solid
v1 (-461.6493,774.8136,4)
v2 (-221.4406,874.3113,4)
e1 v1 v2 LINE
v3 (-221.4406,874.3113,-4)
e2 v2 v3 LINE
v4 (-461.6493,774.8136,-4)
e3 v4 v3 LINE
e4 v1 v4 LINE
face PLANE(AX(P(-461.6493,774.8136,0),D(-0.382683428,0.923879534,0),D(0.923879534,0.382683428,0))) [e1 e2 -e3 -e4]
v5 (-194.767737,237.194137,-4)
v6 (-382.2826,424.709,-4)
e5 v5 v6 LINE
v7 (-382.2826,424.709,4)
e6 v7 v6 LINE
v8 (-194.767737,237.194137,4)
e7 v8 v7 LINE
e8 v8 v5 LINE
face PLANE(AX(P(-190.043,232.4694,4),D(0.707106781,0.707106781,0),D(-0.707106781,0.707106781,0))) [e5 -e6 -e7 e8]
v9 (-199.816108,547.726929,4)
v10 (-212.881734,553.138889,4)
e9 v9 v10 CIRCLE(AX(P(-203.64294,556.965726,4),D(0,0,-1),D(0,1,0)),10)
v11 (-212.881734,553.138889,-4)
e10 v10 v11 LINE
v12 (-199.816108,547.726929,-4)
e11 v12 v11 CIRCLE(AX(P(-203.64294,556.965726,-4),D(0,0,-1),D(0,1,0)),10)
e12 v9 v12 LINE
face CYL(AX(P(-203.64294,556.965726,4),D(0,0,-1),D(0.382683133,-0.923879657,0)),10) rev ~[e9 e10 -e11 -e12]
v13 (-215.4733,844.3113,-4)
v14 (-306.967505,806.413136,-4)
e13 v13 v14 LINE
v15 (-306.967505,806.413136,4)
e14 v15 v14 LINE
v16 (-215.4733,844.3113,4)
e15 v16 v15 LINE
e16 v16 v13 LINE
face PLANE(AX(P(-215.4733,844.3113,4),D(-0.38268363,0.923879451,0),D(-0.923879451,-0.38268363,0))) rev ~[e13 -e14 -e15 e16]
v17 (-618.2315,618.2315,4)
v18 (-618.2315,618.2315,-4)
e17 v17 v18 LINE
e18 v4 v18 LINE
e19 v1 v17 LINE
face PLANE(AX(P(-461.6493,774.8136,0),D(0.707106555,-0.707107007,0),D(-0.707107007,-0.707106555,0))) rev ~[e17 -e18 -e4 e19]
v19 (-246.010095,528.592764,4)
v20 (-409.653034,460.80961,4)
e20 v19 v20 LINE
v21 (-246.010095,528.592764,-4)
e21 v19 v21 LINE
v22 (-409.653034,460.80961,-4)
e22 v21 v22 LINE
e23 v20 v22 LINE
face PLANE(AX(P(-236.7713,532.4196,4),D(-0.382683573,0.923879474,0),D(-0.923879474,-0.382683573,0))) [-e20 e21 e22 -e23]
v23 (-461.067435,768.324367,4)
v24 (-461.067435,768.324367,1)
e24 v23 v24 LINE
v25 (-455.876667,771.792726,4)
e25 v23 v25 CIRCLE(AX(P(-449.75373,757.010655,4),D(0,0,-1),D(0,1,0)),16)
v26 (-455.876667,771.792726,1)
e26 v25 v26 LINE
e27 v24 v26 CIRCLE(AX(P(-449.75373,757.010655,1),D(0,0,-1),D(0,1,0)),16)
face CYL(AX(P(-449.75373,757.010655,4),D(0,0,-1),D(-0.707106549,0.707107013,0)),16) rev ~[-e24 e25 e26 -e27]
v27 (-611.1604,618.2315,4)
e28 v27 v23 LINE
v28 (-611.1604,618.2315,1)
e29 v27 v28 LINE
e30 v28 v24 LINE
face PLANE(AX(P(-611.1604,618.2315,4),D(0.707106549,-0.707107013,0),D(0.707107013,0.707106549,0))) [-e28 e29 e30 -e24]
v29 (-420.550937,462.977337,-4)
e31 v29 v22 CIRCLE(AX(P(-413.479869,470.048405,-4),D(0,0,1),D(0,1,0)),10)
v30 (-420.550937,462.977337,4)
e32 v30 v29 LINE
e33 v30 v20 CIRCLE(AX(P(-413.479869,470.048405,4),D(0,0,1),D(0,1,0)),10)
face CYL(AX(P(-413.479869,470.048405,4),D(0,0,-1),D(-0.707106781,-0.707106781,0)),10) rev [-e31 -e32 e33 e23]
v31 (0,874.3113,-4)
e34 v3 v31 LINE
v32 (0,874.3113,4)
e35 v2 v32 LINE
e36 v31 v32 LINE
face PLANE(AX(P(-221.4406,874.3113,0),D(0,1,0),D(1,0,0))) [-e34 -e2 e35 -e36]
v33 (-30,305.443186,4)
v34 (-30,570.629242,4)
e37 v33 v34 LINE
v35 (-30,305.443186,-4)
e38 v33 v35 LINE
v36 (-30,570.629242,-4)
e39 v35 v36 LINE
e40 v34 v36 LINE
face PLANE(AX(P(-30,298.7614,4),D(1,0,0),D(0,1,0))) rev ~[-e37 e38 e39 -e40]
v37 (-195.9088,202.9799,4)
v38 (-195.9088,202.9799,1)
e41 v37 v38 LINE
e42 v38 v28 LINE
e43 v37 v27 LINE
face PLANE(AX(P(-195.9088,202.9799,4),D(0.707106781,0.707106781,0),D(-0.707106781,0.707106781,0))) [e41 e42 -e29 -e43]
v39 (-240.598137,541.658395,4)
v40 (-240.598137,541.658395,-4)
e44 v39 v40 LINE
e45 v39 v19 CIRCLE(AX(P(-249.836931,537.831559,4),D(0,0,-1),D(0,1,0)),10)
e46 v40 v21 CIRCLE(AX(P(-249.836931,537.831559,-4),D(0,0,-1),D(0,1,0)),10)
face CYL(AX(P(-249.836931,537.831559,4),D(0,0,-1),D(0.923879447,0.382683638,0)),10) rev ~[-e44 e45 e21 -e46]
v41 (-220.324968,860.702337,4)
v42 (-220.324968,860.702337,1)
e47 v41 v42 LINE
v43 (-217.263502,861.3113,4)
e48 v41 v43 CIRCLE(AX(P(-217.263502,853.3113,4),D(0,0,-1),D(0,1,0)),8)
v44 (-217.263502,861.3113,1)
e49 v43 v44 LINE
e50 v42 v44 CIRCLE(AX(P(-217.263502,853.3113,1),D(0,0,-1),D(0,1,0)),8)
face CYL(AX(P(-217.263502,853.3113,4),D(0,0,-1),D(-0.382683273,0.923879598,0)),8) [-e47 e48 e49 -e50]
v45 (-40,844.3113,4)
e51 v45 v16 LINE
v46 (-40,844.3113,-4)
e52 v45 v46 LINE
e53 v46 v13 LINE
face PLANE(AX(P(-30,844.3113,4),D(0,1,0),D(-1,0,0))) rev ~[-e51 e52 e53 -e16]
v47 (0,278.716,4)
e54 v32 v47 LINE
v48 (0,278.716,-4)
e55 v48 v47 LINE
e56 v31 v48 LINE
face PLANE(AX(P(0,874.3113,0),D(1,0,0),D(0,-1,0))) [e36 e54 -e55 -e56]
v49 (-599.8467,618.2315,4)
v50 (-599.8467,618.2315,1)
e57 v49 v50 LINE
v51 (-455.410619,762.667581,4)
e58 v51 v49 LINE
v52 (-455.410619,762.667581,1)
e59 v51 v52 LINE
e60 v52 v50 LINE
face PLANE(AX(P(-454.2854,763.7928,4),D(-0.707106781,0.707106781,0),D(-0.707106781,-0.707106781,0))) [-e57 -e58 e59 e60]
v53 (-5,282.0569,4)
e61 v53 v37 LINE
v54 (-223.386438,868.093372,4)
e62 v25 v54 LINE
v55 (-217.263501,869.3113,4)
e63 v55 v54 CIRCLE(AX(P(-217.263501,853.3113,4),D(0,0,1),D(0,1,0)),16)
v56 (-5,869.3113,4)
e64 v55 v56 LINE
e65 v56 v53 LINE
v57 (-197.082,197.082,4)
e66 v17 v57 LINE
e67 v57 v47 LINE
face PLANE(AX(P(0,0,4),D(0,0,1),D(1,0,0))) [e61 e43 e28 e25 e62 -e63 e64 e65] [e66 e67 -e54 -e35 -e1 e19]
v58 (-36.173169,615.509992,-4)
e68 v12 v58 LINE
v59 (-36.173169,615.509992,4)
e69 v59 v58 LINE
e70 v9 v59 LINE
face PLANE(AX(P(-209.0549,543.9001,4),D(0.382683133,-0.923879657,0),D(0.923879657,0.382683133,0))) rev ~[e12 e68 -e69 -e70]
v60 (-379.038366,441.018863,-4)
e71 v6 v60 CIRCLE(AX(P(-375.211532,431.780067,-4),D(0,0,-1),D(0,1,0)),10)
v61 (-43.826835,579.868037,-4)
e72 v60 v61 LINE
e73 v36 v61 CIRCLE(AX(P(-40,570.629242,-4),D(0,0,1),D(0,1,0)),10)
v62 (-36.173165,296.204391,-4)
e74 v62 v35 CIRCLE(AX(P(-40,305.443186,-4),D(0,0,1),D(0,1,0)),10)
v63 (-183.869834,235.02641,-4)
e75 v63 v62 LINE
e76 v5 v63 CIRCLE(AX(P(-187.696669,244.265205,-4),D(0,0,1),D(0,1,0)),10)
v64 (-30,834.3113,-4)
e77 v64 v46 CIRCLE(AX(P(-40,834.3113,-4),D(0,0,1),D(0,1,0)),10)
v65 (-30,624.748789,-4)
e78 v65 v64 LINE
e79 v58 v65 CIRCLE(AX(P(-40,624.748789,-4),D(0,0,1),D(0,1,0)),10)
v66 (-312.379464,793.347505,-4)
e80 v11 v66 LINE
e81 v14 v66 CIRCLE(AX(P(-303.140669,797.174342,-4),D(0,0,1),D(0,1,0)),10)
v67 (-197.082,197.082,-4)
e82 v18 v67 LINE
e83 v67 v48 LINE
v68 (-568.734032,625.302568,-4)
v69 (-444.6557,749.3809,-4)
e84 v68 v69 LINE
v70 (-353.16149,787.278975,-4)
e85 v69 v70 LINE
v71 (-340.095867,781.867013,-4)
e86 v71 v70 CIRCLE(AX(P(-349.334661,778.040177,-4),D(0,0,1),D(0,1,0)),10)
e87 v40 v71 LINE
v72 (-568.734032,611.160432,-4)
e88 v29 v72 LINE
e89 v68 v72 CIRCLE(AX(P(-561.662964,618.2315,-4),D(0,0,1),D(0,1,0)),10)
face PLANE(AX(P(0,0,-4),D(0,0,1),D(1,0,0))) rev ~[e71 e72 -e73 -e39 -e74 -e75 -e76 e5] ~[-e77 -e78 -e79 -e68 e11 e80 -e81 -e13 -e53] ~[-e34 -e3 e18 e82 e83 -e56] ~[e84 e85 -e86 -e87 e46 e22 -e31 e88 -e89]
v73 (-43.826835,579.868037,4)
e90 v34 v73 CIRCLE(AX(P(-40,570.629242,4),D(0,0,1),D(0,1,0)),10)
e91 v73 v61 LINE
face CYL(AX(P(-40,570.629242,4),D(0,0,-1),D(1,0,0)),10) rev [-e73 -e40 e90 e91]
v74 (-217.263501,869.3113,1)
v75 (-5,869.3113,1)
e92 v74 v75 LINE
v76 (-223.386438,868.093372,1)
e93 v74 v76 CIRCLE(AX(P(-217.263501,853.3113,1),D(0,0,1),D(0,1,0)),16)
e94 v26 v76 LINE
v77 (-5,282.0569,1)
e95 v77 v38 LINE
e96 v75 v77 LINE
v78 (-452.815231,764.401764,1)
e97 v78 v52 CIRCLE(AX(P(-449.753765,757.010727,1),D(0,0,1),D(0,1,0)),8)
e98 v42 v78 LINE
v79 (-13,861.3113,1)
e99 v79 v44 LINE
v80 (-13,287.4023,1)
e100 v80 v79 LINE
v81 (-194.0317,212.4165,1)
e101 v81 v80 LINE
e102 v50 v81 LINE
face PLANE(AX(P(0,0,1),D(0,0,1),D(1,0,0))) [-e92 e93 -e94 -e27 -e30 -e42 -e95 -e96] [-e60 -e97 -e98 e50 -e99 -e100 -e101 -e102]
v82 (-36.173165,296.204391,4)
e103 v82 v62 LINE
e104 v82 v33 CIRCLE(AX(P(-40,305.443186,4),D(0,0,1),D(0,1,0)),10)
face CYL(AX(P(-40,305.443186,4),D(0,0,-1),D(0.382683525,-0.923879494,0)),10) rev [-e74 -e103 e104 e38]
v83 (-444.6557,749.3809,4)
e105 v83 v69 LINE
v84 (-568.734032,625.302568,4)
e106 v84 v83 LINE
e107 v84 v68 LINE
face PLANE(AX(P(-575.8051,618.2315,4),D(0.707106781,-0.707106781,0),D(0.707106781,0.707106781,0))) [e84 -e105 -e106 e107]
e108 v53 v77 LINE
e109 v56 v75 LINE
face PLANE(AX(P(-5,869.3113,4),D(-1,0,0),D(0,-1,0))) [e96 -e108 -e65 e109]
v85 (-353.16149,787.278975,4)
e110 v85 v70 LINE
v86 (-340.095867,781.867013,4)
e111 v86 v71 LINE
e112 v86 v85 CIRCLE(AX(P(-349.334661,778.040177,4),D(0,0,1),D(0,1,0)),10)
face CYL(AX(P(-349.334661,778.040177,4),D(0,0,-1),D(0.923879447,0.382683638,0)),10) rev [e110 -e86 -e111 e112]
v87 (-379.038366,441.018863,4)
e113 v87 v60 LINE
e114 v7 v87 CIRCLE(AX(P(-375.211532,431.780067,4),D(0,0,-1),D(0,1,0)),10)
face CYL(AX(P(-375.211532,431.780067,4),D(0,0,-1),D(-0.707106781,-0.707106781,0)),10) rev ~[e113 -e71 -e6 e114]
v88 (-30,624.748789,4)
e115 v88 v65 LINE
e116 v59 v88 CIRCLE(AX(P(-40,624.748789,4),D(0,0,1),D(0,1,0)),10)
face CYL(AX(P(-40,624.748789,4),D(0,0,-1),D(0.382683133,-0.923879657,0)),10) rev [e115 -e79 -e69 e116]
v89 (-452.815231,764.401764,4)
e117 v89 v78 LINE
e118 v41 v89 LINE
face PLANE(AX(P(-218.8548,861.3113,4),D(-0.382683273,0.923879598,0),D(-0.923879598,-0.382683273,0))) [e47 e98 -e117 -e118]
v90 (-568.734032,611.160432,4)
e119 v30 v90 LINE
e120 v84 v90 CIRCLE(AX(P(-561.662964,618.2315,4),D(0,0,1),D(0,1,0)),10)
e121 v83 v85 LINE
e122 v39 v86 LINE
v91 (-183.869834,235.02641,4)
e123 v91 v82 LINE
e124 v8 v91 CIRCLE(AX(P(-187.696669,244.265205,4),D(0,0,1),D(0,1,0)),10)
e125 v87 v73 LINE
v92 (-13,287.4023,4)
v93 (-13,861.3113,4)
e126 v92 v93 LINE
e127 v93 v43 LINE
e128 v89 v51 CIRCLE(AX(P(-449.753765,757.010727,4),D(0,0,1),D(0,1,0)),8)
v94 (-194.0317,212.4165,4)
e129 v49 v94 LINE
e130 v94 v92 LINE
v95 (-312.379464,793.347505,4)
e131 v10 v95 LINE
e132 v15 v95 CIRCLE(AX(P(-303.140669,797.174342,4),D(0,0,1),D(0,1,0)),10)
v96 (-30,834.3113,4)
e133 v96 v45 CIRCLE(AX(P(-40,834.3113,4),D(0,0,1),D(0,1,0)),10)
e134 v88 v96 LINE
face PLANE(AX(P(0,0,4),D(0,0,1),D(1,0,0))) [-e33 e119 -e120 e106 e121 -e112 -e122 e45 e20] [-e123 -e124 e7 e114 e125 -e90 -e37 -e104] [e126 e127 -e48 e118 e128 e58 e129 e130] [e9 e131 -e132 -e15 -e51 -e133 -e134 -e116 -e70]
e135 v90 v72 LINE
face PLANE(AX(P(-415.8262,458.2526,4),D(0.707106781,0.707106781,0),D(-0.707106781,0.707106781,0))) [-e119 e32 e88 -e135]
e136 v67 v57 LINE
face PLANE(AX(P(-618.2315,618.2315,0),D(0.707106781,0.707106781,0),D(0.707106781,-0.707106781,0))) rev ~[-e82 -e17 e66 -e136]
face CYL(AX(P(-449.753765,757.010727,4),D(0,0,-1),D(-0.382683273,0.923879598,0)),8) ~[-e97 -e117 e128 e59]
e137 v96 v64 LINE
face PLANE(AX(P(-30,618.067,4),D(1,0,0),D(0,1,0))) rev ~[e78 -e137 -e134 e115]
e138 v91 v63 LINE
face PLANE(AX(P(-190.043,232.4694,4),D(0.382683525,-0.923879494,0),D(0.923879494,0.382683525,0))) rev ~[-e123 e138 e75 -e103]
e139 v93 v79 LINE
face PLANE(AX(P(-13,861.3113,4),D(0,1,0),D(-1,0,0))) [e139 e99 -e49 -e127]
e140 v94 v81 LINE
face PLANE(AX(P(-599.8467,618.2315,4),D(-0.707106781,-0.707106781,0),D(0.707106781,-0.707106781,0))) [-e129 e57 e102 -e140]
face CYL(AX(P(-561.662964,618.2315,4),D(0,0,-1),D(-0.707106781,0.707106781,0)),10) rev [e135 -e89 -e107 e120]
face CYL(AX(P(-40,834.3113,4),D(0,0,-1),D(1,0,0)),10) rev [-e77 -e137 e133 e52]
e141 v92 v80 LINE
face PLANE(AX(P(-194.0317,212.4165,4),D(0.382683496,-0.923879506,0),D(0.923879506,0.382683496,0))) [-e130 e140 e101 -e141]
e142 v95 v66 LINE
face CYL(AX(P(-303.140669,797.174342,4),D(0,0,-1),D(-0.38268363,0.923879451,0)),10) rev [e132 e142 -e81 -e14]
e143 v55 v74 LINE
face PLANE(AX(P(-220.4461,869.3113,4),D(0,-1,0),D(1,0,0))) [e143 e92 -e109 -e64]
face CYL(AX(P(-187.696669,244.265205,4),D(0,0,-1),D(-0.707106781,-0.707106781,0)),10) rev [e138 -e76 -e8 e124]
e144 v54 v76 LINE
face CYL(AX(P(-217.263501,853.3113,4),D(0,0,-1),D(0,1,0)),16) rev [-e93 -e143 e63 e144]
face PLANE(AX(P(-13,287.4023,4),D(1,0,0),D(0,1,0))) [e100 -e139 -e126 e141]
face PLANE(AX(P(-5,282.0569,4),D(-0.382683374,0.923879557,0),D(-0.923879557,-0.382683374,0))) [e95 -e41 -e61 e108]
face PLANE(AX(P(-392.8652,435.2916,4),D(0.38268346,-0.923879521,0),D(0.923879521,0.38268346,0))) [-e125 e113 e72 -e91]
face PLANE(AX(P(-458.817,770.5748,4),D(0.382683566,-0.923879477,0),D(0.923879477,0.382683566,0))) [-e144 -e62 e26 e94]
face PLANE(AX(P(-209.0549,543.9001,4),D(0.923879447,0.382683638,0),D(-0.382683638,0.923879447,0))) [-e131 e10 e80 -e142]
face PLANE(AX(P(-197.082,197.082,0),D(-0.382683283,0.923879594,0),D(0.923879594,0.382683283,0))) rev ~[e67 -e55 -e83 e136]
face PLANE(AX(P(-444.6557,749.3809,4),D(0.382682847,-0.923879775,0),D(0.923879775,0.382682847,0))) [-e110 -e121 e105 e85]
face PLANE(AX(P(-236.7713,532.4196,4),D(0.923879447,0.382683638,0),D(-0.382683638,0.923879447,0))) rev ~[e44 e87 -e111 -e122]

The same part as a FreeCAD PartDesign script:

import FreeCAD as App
import Part
import Sketcher
Q = App.Units.Quantity


def edges_at(feature, points):
    """Names of the edges that pass closest to the given points."""
    edges = feature.Shape.Edges
    near = lambda p: min(range(len(edges)), key=lambda i: edges[i].distToShape(Part.Vertex(*p))[0])
    return sorted({f"Edge{near(p) + 1}" for p in points})

doc = App.newDocument("Part")
body = doc.addObject("PartDesign::Body", "Body")

# Sketch on XY plane
sketch1 = doc.addObject("Sketcher::SketchObject", "Sketch")
body.addObject(sketch1)
sketch1.AttachmentSupport = (doc.XY_Plane, [""])
sketch1.MapMode = "FlatFace"
sketch1.addGeometry([
    Part.LineSegment(App.Vector(-618, 618, 0), App.Vector(-197, 197, 0)),  # 0
    Part.LineSegment(App.Vector(-197, 197, 0), App.Vector(0, 279, 0)),  # 1
    Part.LineSegment(App.Vector(0, 279, 0), App.Vector(0, 874, 0)),  # 2
    Part.LineSegment(App.Vector(0, 874, 0), App.Vector(-221, 874, 0)),  # 3
    Part.LineSegment(App.Vector(-221, 874, 0), App.Vector(-462, 775, 0)),  # 4
    Part.LineSegment(App.Vector(-462, 775, 0), App.Vector(-618, 618, 0)),  # 5
], False)
sketch1.addConstraint([
    Sketcher.Constraint("Coincident", 0, 2, 1, 1),
    Sketcher.Constraint("Coincident", 1, 2, 2, 1),
    Sketcher.Constraint("Coincident", 2, 2, 3, 1),
    Sketcher.Constraint("Coincident", 3, 2, 4, 1),
    Sketcher.Constraint("Coincident", 4, 2, 5, 1),
    Sketcher.Constraint("Coincident", 5, 2, 0, 1),
    Sketcher.Constraint("Vertical", 2),
    Sketcher.Constraint("Horizontal", 3),
    Sketcher.Constraint("PointOnObject", 1, 2, -2),
    Sketcher.Constraint("Parallel", 1, 4),
    Sketcher.Constraint("Perpendicular", 0, 5),
    Sketcher.Constraint("Distance", 4, Q("260 mm")),
    Sketcher.Constraint("Angle", 0, Q("-45 deg")),
    Sketcher.Constraint("Angle", 1, Q("22.5 deg")),
    Sketcher.Constraint("Distance", 1, Q("213.32 mm")),
    Sketcher.Constraint("DistanceX", 3, 2, 3, 1, Q("221.4406 mm")),
    Sketcher.Constraint("DistanceY", 2, 1, 2, 2, Q("595.5953 mm")),
    Sketcher.Constraint("DistanceY", -1, 1, 0, 2, Q("197.082 mm")),
])
pad1 = doc.addObject("PartDesign::Pad", "Pad")
body.addObject(pad1)
pad1.Profile = sketch1
pad1.Length = 8
pad1.Midplane = True

# Sketch on XY plane
sketch2 = doc.addObject("Sketcher::SketchObject", "Sketch001")
body.addObject(sketch2)
sketch2.AttachmentSupport = (doc.XY_Plane, [""])
sketch2.MapMode = "FlatFace"
sketch2.AttachmentOffset = App.Placement(App.Vector(0, 0, 4), App.Rotation())
sketch2.addGeometry([
    Part.LineSegment(App.Vector(-416, 458, 0), App.Vector(-237, 532, 0)),  # 0
    Part.LineSegment(App.Vector(-237, 532, 0), App.Vector(-344, 791, 0)),  # 1
    Part.LineSegment(App.Vector(-344, 791, 0), App.Vector(-445, 749, 0)),  # 2
    Part.LineSegment(App.Vector(-445, 749, 0), App.Vector(-576, 618, 0)),  # 3
    Part.LineSegment(App.Vector(-576, 618, 0), App.Vector(-416, 458, 0)),  # 4
    Part.LineSegment(App.Vector(-316, 803, 0), App.Vector(-209, 544, 0)),  # 5
    Part.LineSegment(App.Vector(-209, 544, 0), App.Vector(-30, 618, 0)),  # 6
    Part.LineSegment(App.Vector(-30, 618, 0), App.Vector(-30, 844, 0)),  # 7
    Part.LineSegment(App.Vector(-30, 844, 0), App.Vector(-215, 844, 0)),  # 8
    Part.LineSegment(App.Vector(-215, 844, 0), App.Vector(-316, 803, 0)),  # 9
    Part.LineSegment(App.Vector(-30, 586, 0), App.Vector(-393, 435, 0)),  # 10
    Part.LineSegment(App.Vector(-393, 435, 0), App.Vector(-190, 232, 0)),  # 11
    Part.LineSegment(App.Vector(-190, 232, 0), App.Vector(-30, 299, 0)),  # 12
    Part.LineSegment(App.Vector(-30, 299, 0), App.Vector(-30, 586, 0)),  # 13
], False)
sketch2.addConstraint([
    Sketcher.Constraint("Coincident", 0, 2, 1, 1),
    Sketcher.Constraint("Coincident", 1, 2, 2, 1),
    Sketcher.Constraint("Coincident", 2, 2, 3, 1),
    Sketcher.Constraint("Coincident", 3, 2, 4, 1),
    Sketcher.Constraint("Coincident", 4, 2, 0, 1),
    Sketcher.Constraint("Coincident", 5, 2, 6, 1),
    Sketcher.Constraint("Coincident", 6, 2, 7, 1),
    Sketcher.Constraint("Coincident", 7, 2, 8, 1),
    Sketcher.Constraint("Coincident", 8, 2, 9, 1),
    Sketcher.Constraint("Coincident", 9, 2, 5, 1),
    Sketcher.Constraint("Coincident", 10, 2, 11, 1),
    Sketcher.Constraint("Coincident", 11, 2, 12, 1),
    Sketcher.Constraint("Coincident", 12, 2, 13, 1),
    Sketcher.Constraint("Coincident", 13, 2, 10, 1),
    Sketcher.Constraint("Vertical", 7),
    Sketcher.Constraint("Horizontal", 8),
    Sketcher.Constraint("Vertical", 13),
    Sketcher.Constraint("Perpendicular", 0, 1),
    Sketcher.Constraint("Perpendicular", 1, 2),
    Sketcher.Constraint("Perpendicular", 3, 4),
    Sketcher.Constraint("Perpendicular", 2, 5),
    Sketcher.Constraint("Perpendicular", 5, 6),
    Sketcher.Constraint("Parallel", 6, 9),
    Sketcher.Constraint("Parallel", 9, 10),
    Sketcher.Constraint("Parallel", 4, 11),
    Sketcher.Constraint("Parallel", 10, 12),
    Sketcher.Constraint("Vertical", 7, 2, 12, 2),
    Sketcher.Constraint("Equal", 1, 5),
    Sketcher.Constraint("Equal", 0, 6),
    Sketcher.Constraint("Equal", 2, 9),
    Sketcher.Constraint("Distance", 1, Q("280 mm")),
    Sketcher.Constraint("DistanceX", 6, 2, -1, 1, Q("30 mm")),
    Sketcher.Constraint("Angle", 3, Q("-135 deg")),
    Sketcher.Constraint("Angle", 0, Q("22.5 deg")),
    Sketcher.Constraint("DistanceY", -1, 1, 5, 2, Q("543.9 mm")),
    Sketcher.Constraint("DistanceY", 13, 1, 13, 2, Q("286.834 mm")),
    Sketcher.Constraint("DistanceX", 3, 2, 10, 2, Q("182.94 mm")),
    Sketcher.Constraint("DistanceY", 10, 2, 3, 2, Q("182.94 mm")),
    Sketcher.Constraint("DistanceX", 8, 2, 8, 1, Q("185.4733 mm")),
    Sketcher.Constraint("DistanceY", -1, 1, 2, 2, Q("749.381 mm")),
    Sketcher.Constraint("DistanceX", 3, 2, -1, 1, Q("575.805 mm")),
    Sketcher.Constraint("DistanceX", 5, 2, -1, 1, Q("209.055 mm")),
])
pocket1 = doc.addObject("PartDesign::Pocket", "Pocket")
body.addObject(pocket1)
pocket1.Profile = sketch2
pocket1.Length = 8
doc.recompute()

fillet = doc.addObject("PartDesign::Fillet", "Fillet")
body.addObject(fillet)
fillet.Base = (pocket1, edges_at(pocket1, [
    (-575.805, 618.231, 0),
    (-343.923, 791.106, 0),
    (-236.771, 532.42, 0),
    (-415.826, 458.253, 0),
    (-316.206, 802.586, 0),
    (-30, 844.311, 0),
    (-30, 618.067, 0),
    (-209.055, 543.9, 0),
    (-392.865, 435.292, 0),
    (-30, 585.595, 0),
    (-30, 298.761, 0),
    (-190.043, 232.469, 0),
]))
fillet.Radius = 10

# Sketch on XY plane
sketch3 = doc.addObject("Sketcher::SketchObject", "Sketch002")
body.addObject(sketch3)
sketch3.AttachmentSupport = (doc.XY_Plane, [""])
sketch3.MapMode = "FlatFace"
sketch3.AttachmentOffset = App.Placement(App.Vector(0, 0, 4), App.Rotation())
sketch3.addGeometry([
    Part.LineSegment(App.Vector(-220, 869, 0), App.Vector(-459, 771, 0)),  # 0
    Part.LineSegment(App.Vector(-459, 771, 0), App.Vector(-611, 618, 0)),  # 1
    Part.LineSegment(App.Vector(-611, 618, 0), App.Vector(-196, 203, 0)),  # 2
    Part.LineSegment(App.Vector(-196, 203, 0), App.Vector(-5, 282, 0)),  # 3
    Part.LineSegment(App.Vector(-5, 282, 0), App.Vector(-5, 869, 0)),  # 4
    Part.LineSegment(App.Vector(-5, 869, 0), App.Vector(-220, 869, 0)),  # 5
    Part.LineSegment(App.Vector(-454, 764, 0), App.Vector(-219, 861, 0)),  # 6
    Part.LineSegment(App.Vector(-219, 861, 0), App.Vector(-13, 861, 0)),  # 7
    Part.LineSegment(App.Vector(-13, 861, 0), App.Vector(-13, 287, 0)),  # 8
    Part.LineSegment(App.Vector(-13, 287, 0), App.Vector(-194, 212, 0)),  # 9
    Part.LineSegment(App.Vector(-194, 212, 0), App.Vector(-600, 618, 0)),  # 10
    Part.LineSegment(App.Vector(-600, 618, 0), App.Vector(-454, 764, 0)),  # 11
], False)
sketch3.addConstraint([
    Sketcher.Constraint("Coincident", 0, 2, 1, 1),
    Sketcher.Constraint("Coincident", 1, 2, 2, 1),
    Sketcher.Constraint("Coincident", 2, 2, 3, 1),
    Sketcher.Constraint("Coincident", 3, 2, 4, 1),
    Sketcher.Constraint("Coincident", 4, 2, 5, 1),
    Sketcher.Constraint("Coincident", 5, 2, 0, 1),
    Sketcher.Constraint("Coincident", 6, 2, 7, 1),
    Sketcher.Constraint("Coincident", 7, 2, 8, 1),
    Sketcher.Constraint("Coincident", 8, 2, 9, 1),
    Sketcher.Constraint("Coincident", 9, 2, 10, 1),
    Sketcher.Constraint("Coincident", 10, 2, 11, 1),
    Sketcher.Constraint("Coincident", 11, 2, 6, 1),
    Sketcher.Constraint("Vertical", 4),
    Sketcher.Constraint("Horizontal", 5),
    Sketcher.Constraint("Horizontal", 7),
    Sketcher.Constraint("Vertical", 8),
    Sketcher.Constraint("Perpendicular", 1, 2),
    Sketcher.Constraint("Parallel", 0, 3),
    Sketcher.Constraint("Parallel", 3, 6),
    Sketcher.Constraint("Parallel", 6, 9),
    Sketcher.Constraint("Parallel", 2, 10),
    Sketcher.Constraint("Perpendicular", 10, 11),
    Sketcher.Constraint("Horizontal", 1, 2, 10, 2),
    Sketcher.Constraint("DistanceX", 3, 2, -1, 1, Q("5 mm")),
    Sketcher.Constraint("DistanceY", 6, 2, 5, 2, Q("8 mm")),
    Sketcher.Constraint("DistanceX", 7, 2, 4, 2, Q("8 mm")),
    Sketcher.Constraint("Angle", 1, Q("-135 deg")),
    Sketcher.Constraint("Angle", 0, Q("-157.5 deg")),
    Sketcher.Constraint("DistanceX", 5, 2, 5, 1, Q("215.446 mm")),
    Sketcher.Constraint("DistanceY", 8, 2, 8, 1, Q("573.909 mm")),
    Sketcher.Constraint("DistanceY", -1, 1, 2, 2, Q("202.98 mm")),
    Sketcher.Constraint("Distance", 1, Q("215.446 mm")),
    Sketcher.Constraint("Distance", 10, Q("573.909 mm")),
    Sketcher.Constraint("DistanceX", 7, 1, 7, 2, Q("205.8548 mm")),
    Sketcher.Constraint("DistanceY", 4, 1, 4, 2, Q("587.2544 mm")),
    Sketcher.Constraint("DistanceX", 0, 2, -1, 1, Q("458.817 mm")),
])
pocket2 = doc.addObject("PartDesign::Pocket", "Pocket001")
body.addObject(pocket2)
pocket2.Profile = sketch3
pocket2.Length = 3
doc.recompute()

fillet2 = doc.addObject("PartDesign::Fillet", "Fillet001")
body.addObject(fillet2)
fillet2.Base = (pocket2, edges_at(pocket2, [(-220.446, 869.311, 2.5), (-458.817, 770.575, 2.5)]))
fillet2.Radius = 16
doc.recompute()

fillet3 = doc.addObject("PartDesign::Fillet", "Fillet002")
body.addObject(fillet3)
fillet3.Base = (fillet2, edges_at(fillet2, [(-454.285, 763.793, 2.5), (-218.855, 861.311, 2.5)]))
fillet3.Radius = 8

doc.recompute()
